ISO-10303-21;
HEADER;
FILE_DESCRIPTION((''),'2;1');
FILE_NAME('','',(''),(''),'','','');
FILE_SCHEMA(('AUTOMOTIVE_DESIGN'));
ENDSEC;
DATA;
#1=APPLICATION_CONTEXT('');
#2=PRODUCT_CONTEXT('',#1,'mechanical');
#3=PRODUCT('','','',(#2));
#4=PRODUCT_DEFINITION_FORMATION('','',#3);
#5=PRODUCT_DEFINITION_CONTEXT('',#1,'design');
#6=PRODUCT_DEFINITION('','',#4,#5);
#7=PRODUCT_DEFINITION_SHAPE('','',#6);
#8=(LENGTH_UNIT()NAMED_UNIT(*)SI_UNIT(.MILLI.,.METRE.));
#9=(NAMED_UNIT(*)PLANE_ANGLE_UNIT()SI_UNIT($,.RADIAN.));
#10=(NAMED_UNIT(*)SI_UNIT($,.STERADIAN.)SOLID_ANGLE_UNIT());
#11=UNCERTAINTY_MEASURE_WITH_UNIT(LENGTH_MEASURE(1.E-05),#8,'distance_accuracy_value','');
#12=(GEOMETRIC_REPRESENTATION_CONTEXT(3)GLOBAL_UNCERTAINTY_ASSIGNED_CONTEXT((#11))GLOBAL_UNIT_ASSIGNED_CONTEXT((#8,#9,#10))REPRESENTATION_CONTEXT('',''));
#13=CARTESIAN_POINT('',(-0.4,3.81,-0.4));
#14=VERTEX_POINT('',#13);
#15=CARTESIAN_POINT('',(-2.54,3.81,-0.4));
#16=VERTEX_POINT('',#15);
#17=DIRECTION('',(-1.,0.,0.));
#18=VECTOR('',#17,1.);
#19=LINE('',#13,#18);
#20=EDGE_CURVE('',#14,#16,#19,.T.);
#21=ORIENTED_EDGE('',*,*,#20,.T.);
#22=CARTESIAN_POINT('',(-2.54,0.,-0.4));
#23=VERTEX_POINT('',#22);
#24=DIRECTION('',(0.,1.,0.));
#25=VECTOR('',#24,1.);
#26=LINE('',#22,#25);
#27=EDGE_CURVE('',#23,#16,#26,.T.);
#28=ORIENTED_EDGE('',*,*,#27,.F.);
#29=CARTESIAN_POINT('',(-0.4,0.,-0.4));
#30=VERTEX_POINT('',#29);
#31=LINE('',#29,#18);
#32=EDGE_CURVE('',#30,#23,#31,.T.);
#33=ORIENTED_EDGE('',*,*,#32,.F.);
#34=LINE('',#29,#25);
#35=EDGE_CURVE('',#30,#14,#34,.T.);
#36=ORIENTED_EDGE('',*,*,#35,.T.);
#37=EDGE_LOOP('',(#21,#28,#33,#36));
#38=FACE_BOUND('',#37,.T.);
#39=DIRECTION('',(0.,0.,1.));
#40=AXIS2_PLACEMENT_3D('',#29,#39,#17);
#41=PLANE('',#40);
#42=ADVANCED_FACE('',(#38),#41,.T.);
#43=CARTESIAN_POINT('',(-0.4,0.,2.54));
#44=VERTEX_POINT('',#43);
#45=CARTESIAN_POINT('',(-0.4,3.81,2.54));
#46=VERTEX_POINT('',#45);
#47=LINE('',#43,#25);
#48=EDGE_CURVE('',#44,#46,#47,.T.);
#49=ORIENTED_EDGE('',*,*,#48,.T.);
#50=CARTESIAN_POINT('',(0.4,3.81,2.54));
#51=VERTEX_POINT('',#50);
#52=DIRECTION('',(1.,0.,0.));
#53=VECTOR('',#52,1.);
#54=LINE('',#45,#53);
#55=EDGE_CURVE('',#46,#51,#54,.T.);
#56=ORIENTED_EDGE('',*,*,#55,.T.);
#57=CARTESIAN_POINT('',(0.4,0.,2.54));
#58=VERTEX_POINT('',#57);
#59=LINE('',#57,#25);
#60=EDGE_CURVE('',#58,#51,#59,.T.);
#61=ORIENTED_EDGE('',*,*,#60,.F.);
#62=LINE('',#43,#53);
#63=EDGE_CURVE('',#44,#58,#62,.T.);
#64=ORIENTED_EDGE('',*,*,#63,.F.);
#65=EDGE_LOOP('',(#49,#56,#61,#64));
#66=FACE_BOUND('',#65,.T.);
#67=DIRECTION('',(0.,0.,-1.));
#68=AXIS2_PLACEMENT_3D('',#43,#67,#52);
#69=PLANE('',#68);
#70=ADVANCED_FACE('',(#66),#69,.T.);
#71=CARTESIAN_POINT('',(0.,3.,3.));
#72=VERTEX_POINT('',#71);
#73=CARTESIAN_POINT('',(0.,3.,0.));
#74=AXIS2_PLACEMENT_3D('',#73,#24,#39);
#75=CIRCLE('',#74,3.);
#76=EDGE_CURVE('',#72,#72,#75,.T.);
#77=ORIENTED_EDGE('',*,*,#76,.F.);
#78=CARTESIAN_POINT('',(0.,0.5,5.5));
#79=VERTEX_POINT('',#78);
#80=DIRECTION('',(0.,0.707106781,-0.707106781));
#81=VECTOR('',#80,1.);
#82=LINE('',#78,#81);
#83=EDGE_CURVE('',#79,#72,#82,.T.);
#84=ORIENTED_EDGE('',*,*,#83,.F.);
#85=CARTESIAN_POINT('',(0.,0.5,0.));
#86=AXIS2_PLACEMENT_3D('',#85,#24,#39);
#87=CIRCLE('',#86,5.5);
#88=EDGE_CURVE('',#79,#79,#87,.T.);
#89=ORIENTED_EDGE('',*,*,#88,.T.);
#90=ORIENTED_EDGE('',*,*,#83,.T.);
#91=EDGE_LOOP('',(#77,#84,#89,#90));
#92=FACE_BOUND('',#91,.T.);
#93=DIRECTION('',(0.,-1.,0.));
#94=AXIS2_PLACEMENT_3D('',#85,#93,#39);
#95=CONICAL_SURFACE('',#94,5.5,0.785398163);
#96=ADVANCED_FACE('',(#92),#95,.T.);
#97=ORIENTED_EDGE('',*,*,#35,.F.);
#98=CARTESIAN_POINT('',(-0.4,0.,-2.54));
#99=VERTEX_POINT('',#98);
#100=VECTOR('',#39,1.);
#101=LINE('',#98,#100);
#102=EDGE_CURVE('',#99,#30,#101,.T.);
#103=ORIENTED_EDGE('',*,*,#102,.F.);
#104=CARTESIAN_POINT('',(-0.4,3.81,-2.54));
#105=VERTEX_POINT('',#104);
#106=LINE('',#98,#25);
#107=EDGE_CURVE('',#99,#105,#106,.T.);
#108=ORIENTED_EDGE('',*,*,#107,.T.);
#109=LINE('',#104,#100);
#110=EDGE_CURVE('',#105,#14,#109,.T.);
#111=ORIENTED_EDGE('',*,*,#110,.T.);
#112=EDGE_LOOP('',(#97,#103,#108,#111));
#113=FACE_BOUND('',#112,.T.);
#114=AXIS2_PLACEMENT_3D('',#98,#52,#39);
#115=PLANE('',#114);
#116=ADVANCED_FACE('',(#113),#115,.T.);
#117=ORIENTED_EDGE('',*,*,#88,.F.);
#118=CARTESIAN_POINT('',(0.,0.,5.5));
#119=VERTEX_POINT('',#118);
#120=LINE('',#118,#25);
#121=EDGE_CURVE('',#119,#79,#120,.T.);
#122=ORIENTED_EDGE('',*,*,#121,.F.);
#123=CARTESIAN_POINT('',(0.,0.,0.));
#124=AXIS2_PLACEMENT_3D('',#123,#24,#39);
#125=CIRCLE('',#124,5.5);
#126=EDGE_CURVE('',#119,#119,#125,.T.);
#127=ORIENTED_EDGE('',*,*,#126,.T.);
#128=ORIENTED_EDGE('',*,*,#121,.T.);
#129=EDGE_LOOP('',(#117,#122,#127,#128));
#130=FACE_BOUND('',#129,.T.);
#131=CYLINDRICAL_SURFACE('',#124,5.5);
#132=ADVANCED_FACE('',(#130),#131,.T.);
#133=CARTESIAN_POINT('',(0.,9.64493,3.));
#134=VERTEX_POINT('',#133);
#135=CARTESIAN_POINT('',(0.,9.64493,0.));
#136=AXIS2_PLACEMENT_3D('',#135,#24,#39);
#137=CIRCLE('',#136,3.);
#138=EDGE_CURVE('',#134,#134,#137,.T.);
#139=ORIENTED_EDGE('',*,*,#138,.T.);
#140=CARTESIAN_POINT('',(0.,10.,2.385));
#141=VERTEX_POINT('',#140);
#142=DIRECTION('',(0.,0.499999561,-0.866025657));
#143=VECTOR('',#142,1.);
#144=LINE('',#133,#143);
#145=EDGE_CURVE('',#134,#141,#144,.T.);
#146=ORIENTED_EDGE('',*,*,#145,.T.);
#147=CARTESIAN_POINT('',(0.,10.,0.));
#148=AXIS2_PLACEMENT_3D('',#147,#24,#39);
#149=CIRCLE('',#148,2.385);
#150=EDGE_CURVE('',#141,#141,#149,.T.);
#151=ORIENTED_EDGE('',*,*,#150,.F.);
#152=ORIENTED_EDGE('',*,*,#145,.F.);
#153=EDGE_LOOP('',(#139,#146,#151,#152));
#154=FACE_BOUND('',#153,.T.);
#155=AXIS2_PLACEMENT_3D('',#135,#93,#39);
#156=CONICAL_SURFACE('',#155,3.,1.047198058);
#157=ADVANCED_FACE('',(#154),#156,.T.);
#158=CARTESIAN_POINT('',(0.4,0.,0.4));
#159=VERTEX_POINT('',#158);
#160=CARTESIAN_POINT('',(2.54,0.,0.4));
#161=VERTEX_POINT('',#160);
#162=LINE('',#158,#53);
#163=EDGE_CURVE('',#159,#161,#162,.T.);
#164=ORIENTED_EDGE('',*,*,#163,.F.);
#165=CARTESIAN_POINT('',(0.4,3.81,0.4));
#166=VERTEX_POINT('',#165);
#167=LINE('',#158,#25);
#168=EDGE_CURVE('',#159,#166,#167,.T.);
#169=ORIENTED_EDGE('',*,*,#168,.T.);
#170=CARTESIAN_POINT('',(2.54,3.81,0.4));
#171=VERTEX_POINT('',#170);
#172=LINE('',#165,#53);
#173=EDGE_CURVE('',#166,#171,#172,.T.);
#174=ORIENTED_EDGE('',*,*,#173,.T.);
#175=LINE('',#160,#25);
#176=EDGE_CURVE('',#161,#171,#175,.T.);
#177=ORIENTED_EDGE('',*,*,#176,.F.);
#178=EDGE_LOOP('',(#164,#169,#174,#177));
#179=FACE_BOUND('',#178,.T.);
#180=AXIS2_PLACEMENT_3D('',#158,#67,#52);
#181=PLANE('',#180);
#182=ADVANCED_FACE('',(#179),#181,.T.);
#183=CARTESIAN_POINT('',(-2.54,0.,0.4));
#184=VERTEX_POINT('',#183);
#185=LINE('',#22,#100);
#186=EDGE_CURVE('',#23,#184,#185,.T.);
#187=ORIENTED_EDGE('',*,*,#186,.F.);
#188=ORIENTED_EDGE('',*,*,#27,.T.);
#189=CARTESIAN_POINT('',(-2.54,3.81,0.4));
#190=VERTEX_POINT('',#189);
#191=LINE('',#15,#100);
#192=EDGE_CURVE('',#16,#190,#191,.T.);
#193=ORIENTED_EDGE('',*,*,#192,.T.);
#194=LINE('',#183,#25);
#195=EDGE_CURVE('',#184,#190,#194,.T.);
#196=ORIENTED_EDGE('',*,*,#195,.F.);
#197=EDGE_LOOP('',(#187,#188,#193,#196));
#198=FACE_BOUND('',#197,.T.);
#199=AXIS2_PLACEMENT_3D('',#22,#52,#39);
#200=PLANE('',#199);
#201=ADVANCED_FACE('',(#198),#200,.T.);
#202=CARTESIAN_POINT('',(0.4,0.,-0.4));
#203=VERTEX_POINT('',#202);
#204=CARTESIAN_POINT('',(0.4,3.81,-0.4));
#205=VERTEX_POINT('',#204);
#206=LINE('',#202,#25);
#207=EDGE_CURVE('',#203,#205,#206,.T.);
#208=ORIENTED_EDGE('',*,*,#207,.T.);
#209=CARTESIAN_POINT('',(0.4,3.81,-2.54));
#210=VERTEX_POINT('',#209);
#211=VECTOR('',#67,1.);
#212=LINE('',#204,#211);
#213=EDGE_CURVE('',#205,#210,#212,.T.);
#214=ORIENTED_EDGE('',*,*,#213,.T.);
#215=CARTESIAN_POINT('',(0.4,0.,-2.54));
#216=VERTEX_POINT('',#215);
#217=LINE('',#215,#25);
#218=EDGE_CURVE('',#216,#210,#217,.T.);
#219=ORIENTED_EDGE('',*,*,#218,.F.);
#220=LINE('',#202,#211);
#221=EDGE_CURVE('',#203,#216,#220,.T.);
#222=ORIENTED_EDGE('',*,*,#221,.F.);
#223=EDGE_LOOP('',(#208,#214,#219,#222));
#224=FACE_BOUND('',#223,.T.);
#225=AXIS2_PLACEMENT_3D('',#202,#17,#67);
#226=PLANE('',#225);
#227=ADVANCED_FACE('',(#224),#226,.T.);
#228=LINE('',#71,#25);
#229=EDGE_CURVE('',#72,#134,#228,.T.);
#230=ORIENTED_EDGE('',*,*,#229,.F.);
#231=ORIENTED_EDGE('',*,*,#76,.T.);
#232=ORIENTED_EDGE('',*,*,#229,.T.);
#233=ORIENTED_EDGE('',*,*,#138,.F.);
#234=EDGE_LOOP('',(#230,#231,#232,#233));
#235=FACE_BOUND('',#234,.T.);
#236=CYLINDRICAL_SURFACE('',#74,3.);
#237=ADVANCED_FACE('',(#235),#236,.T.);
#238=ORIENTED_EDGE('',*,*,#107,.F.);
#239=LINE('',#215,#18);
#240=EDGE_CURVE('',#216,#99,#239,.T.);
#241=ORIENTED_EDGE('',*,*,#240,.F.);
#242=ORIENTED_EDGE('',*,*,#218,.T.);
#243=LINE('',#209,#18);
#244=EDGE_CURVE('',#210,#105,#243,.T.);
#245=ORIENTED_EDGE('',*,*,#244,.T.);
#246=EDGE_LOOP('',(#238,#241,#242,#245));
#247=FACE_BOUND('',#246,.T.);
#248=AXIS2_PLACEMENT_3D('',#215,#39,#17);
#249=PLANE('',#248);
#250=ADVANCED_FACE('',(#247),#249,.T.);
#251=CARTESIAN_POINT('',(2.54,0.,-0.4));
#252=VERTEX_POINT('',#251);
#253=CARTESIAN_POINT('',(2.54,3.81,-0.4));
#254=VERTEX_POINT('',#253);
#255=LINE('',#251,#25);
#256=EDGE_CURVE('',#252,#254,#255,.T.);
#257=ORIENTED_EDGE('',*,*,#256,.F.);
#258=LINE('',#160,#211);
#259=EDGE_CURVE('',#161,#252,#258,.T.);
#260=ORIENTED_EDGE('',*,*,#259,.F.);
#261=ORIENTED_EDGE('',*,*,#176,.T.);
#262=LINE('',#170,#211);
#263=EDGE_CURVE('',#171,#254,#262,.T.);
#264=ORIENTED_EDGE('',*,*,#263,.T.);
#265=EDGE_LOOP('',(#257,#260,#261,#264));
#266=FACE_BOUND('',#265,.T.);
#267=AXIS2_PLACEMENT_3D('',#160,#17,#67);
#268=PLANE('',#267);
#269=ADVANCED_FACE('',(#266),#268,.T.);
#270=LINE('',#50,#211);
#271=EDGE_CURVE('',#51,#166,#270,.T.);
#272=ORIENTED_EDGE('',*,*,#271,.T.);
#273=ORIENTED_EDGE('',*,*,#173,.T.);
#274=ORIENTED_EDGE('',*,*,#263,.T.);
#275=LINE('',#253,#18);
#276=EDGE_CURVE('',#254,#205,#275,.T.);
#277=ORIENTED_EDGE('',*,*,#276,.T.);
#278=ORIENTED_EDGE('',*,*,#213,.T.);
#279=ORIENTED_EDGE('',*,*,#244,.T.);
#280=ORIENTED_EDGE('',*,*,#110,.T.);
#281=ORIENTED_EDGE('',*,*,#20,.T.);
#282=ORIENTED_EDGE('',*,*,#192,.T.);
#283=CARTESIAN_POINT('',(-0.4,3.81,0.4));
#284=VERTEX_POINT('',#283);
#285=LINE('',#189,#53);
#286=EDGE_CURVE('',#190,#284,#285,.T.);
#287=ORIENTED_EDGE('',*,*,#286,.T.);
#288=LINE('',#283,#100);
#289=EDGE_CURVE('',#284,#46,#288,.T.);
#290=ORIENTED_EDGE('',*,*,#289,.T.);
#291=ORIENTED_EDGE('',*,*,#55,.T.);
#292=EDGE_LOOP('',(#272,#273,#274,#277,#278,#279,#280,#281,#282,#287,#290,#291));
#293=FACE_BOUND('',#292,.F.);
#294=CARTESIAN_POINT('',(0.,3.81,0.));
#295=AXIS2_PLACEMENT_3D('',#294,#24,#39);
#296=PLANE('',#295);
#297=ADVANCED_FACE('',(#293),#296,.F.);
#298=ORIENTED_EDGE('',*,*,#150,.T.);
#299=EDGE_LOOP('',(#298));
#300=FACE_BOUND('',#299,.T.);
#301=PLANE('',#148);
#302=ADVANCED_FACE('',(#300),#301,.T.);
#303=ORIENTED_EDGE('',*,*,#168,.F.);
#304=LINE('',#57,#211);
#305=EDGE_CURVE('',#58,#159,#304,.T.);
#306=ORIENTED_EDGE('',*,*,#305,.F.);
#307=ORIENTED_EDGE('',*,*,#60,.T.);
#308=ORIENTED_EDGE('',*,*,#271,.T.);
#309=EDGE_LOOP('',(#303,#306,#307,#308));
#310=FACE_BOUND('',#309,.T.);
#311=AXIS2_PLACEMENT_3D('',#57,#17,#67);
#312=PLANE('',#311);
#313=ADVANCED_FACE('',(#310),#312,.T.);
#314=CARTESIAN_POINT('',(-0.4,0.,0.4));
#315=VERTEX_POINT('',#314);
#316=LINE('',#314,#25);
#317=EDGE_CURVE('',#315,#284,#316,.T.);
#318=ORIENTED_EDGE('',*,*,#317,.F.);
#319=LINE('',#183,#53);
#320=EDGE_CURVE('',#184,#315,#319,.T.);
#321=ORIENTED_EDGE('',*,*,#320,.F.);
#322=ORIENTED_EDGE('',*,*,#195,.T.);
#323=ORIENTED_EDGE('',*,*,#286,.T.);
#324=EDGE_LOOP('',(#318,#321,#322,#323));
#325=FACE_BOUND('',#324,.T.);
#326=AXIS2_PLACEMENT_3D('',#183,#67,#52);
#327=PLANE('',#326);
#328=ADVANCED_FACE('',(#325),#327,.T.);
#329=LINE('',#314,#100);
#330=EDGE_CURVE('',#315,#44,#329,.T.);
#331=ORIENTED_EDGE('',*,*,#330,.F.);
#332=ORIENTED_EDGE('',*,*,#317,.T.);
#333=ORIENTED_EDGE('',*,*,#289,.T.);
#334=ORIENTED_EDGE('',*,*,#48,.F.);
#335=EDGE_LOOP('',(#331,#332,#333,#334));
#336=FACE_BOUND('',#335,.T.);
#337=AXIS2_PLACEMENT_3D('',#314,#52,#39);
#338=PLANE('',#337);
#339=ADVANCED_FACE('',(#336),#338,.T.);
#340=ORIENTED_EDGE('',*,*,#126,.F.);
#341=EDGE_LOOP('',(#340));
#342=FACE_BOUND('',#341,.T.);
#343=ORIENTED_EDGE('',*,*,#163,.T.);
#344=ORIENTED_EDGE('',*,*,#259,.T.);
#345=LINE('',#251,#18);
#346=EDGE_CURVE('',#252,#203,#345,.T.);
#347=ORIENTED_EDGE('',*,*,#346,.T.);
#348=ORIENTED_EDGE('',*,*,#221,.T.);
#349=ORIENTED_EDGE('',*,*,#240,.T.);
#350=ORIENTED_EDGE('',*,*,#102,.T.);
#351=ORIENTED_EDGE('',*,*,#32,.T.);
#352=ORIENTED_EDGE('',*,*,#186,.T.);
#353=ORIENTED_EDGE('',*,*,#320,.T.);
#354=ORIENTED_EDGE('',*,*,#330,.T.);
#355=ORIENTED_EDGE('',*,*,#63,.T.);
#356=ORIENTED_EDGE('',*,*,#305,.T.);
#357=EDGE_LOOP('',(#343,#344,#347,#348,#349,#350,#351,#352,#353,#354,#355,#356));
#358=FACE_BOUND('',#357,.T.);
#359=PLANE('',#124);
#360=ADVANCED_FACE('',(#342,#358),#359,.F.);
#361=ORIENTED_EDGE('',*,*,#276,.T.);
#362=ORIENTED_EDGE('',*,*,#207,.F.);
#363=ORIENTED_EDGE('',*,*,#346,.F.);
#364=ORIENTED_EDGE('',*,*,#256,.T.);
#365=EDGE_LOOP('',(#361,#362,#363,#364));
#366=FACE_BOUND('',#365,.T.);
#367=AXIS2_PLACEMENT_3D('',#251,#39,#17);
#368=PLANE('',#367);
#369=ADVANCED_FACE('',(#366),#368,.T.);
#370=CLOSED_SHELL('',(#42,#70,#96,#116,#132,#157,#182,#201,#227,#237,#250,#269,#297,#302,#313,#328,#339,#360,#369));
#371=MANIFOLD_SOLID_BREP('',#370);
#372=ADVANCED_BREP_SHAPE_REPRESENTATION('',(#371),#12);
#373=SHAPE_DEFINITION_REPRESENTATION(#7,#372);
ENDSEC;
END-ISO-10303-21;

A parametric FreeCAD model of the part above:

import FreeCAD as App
import Part
import Sketcher

V = App.Vector
Q = App.Units.Quantity


def add_polygon(sketch, points):
    """Adds a closed chain of lines whose ends are joined by coincident constraints."""
    first, n = sketch.GeometryCount, len(points)
    for a, b in zip(points, points[1:] + points[:1]):
        sketch.addGeometry(Part.LineSegment(App.Vector(*a, 0), App.Vector(*b, 0)), False)
    for i in range(n):
        sketch.addConstraint(Sketcher.Constraint("Coincident", first + i, 2, first + (i + 1) % n, 1))

doc = App.newDocument("Part")
params = doc.addObject("Spreadsheet::Sheet", "Params")
for row, (alias, value) in enumerate([
    ("sketch1_width", "10 mm"),
    ("sketch1_width2", "0.5 mm"),
    ("sketch1_height", "5.5 mm"),
    ("revolution_angle", "360 deg"),
    ("sketch2_width", "0.8 mm"),
    ("sketch2_width2", "2.14 mm"),
    ("pocket1_length", "3.81 mm"),
], start=1):
    params.set(f"A{row}", alias)
    params.set(f"B{row}", "=" + value)
    params.setAlias(f"B{row}", alias)

body = doc.addObject("PartDesign::Body", "Body")

# Sketch on YZ plane
sketch1 = doc.addObject("Sketcher::SketchObject", "Sketch")
body.addObject(sketch1)
sketch1.AttachmentSupport = (doc.YZ_Plane, [""])
sketch1.MapMode = "FlatFace"
add_polygon(sketch1, [(0, 5.5), (0, 0), (10, 0), (10, 2.4), (9.6, 3), (3, 3), (0.5, 5.5)])  # lines 0-6
sketch1.addConstraint([
    Sketcher.Constraint("Vertical", 0),
    Sketcher.Constraint("Horizontal", 1),
    Sketcher.Constraint("Vertical", 2),
    Sketcher.Constraint("Horizontal", 4),
    Sketcher.Constraint("Horizontal", 6),
    Sketcher.Constraint("Coincident", 0, 2, -1, 1),
    Sketcher.Constraint("DistanceX", 1, 1, 1, 2, Q("10 mm")),
    Sketcher.Constraint("Angle", 5, Q("135 deg")),
    Sketcher.Constraint("DistanceX", 6, 2, 6, 1, Q("0.5 mm")),
    Sketcher.Constraint("DistanceY", 0, 2, 0, 1, Q("5.5 mm")),
    Sketcher.Constraint("DistanceY", -1, 1, 3, 2, Q("3 mm")),
    Sketcher.Constraint("DistanceY", 2, 1, 2, 2, Q("2.385 mm")),
    Sketcher.Constraint("DistanceX", 4, 2, 4, 1, Q("6.64493 mm")),
])
sketch1.setExpression("Constraints[13]", "Params.sketch1_width")
sketch1.setExpression("Constraints[15]", "Params.sketch1_width2")
sketch1.setExpression("Constraints[16]", "Params.sketch1_height")
revolution = doc.addObject("PartDesign::Revolution", "Revolution")
body.addObject(revolution)
revolution.Profile = sketch1
revolution.ReferenceAxis = (sketch1, ["H_Axis"])
revolution.setExpression("Angle", "Params.revolution_angle")

# Sketch on XZ plane
sketch2 = doc.addObject("Sketcher::SketchObject", "Sketch001")
body.addObject(sketch2)
sketch2.AttachmentSupport = (doc.XZ_Plane, [""])
sketch2.MapMode = "FlatFace"
add_polygon(sketch2, [(0.4, 0.4), (0.4, 2.5), (-0.4, 2.5), (-0.4, 0.4), (-2.5, 0.4), (-2.5, -0.4), (-0.4, -0.4), (-0.4, -2.5), (0.4, -2.5), (0.4, -0.4), (2.5, -0.4), (2.5, 0.4)])  # lines 0-11
sketch2.addConstraint([
    Sketcher.Constraint("Vertical", 0),
    Sketcher.Constraint("Horizontal", 1),
    Sketcher.Constraint("Vertical", 2),
    Sketcher.Constraint("Horizontal", 3),
    Sketcher.Constraint("Vertical", 4),
    Sketcher.Constraint("Horizontal", 5),
    Sketcher.Constraint("Vertical", 6),
    Sketcher.Constraint("Horizontal", 7),
    Sketcher.Constraint("Vertical", 8),
    Sketcher.Constraint("Horizontal", 9),
    Sketcher.Constraint("Vertical", 10),
    Sketcher.Constraint("Horizontal", 11),
    Sketcher.Constraint("Symmetric", 0, 2, 6, 2, -1, 1),
    Sketcher.Constraint("Symmetric", 2, 2, 8, 2, -1, 1),
    Sketcher.Constraint("Symmetric", 4, 2, 10, 2, -1, 1),
    Sketcher.Constraint("Symmetric", 5, 2, 8, 2, -2),
    Sketcher.Constraint("Equal", 11, 0),
    Sketcher.Constraint("Equal", 7, 4),
    Sketcher.Constraint("DistanceX", 1, 2, 1, 1, Q("0.8 mm")),
    Sketcher.Constraint("DistanceX", 3, 2, 3, 1, Q("2.14 mm")),
])
sketch2.setExpression("Constraints[30]", "Params.sketch2_width")
sketch2.setExpression("Constraints[31]", "Params.sketch2_width2")
pocket1 = doc.addObject("PartDesign::Pocket", "Pocket")
body.addObject(pocket1)
pocket1.Profile = sketch2
pocket1.setExpression("Length", "Params.pocket1_length")

doc.recompute()
